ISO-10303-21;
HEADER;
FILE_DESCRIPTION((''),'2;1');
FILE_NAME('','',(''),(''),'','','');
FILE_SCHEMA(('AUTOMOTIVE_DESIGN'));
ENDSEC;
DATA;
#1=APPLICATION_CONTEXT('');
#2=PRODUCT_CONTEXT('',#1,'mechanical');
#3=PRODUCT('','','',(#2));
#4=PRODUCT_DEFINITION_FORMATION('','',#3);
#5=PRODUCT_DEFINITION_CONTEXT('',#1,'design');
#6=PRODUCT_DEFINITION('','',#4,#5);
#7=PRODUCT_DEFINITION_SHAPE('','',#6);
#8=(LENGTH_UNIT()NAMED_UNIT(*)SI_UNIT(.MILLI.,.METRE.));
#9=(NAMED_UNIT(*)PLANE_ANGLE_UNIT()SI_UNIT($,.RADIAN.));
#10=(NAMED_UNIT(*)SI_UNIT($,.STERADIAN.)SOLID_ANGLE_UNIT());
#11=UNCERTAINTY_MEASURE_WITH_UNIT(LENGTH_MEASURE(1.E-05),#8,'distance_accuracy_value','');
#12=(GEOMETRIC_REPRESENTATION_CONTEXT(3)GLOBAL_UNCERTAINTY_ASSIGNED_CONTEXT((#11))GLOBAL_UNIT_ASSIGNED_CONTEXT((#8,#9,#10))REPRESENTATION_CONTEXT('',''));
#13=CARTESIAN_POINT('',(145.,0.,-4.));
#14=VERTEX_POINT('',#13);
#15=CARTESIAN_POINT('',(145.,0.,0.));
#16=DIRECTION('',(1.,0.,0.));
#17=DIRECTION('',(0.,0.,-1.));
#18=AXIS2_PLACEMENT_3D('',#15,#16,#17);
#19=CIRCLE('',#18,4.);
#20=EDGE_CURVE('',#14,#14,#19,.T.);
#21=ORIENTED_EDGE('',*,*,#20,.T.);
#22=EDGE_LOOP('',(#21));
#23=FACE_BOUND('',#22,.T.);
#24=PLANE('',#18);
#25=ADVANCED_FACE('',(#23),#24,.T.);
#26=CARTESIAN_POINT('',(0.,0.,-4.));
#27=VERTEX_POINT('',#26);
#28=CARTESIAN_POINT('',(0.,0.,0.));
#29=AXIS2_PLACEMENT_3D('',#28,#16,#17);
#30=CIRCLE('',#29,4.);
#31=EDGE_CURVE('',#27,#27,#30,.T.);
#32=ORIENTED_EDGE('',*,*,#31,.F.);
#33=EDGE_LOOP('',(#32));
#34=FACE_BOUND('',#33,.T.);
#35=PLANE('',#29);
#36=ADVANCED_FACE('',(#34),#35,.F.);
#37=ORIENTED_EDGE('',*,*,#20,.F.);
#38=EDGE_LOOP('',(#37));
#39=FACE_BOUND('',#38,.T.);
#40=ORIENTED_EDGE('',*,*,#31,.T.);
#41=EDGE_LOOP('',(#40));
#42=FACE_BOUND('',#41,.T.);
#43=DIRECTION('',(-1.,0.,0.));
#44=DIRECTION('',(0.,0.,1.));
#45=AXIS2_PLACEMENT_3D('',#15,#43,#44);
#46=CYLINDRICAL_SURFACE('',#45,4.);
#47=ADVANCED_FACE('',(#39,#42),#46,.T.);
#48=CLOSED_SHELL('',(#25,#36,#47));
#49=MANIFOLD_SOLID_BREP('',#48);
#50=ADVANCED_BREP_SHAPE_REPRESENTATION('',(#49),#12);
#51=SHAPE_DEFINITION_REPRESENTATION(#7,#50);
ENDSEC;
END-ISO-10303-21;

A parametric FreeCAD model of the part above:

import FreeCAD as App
import Part
import Sketcher

V = App.Vector
Q = App.Units.Quantity

doc = App.newDocument("Part")
body = doc.addObject("PartDesign::Body", "Body")

# Sketch on YZ plane
sketch1 = doc.addObject("Sketcher::SketchObject", "Sketch")
body.addObject(sketch1)
sketch1.AttachmentSupport = (doc.YZ_Plane, [""])
sketch1.MapMode = "FlatFace"
sketch1.addGeometry(Part.Circle(V(0, 0, 0), V(0, 0, 1), 4), False)
sketch1.addConstraint([
    Sketcher.Constraint("Coincident", 0, 3, -1, 1),
    Sketcher.Constraint("Diameter", 0, Q("8 mm")),
])
pad1 = doc.addObject("PartDesign::Pad", "Pad")
body.addObject(pad1)
pad1.Profile = sketch1
pad1.Length = 145

doc.recompute()
